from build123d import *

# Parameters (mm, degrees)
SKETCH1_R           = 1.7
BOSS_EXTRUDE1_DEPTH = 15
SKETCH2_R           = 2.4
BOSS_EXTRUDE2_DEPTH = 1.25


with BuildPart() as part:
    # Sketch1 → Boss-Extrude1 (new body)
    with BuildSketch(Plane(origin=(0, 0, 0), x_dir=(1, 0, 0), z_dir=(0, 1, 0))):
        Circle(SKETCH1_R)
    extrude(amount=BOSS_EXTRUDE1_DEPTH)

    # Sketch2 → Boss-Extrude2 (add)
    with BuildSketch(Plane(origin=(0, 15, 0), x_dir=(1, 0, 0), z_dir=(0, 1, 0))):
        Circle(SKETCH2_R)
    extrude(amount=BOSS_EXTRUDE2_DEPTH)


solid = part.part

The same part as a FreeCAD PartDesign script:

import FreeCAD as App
import Part
import Sketcher
from FreeCAD import Vector

doc = App.newDocument("Part")
body = doc.addObject("PartDesign::Body", "Body")

sketch1 = body.newObject("Sketcher::SketchObject", "Sketch")
sketch1.AttachmentSupport = (doc.getObject("XZ_Plane"), [""])
sketch1.MapMode = "FlatFace"
sketch1.addGeometry(Part.Circle(Vector(0, 0, 0), Vector(0, 0, 1), 1.7), False)
sketch1.addConstraint([
    Sketcher.Constraint("Coincident", 0, 3, -1, 1),
    Sketcher.Constraint("Diameter", 0, 3.4),
])
pad1 = body.newObject("PartDesign::Pad", "Pad")
pad1.Profile = sketch1
pad1.Length = 15
pad1.Reversed = True

sketch2 = body.newObject("Sketcher::SketchObject", "Sketch001")
sketch2.AttachmentSupport = (doc.getObject("XZ_Plane"), [""])
sketch2.MapMode = "FlatFace"
sketch2.AttachmentOffset = App.Placement(Vector(0, 0, -15), App.Rotation())
sketch2.addGeometry(Part.Circle(Vector(0, 0, 0), Vector(0, 0, 1), 2.4), False)
sketch2.addConstraint([
    Sketcher.Constraint("Coincident", 0, 3, -1, 1),
    Sketcher.Constraint("Diameter", 0, 4.8),
])
pad2 = body.newObject("PartDesign::Pad", "Pad001")
pad2.Profile = sketch2
pad2.Length = 1.25
pad2.Reversed = True

doc.recompute()
